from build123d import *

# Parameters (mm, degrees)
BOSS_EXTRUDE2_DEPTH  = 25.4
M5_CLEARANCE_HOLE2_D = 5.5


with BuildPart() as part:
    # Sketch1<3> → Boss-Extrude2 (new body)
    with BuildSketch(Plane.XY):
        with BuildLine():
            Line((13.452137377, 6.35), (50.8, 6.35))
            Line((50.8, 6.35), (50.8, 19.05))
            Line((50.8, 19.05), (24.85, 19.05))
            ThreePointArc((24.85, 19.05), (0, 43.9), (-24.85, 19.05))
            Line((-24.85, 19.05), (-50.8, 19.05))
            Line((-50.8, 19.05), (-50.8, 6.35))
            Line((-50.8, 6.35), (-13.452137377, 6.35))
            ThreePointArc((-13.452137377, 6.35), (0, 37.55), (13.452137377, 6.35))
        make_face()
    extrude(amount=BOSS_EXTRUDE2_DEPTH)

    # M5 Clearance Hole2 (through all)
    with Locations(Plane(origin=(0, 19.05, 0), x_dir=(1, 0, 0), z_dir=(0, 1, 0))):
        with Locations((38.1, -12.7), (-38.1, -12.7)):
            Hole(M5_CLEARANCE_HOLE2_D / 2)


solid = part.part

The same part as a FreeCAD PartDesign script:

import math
import FreeCAD as App
import Part
import Sketcher
from FreeCAD import Vector
Q = App.Units.Quantity

doc = App.newDocument("Part")
body = doc.addObject("PartDesign::Body", "Body")

sketch1 = body.newObject("Sketcher::SketchObject", "Sketch")
sketch1.AttachmentSupport = (doc.getObject("XY_Plane"), [""])
sketch1.MapMode = "FlatFace"
sketch1.addGeometry(Part.LineSegment(Vector(13.452137, 6.35, 0), Vector(50.8, 6.35, 0)), False)
sketch1.addGeometry(Part.LineSegment(Vector(50.8, 6.35, 0), Vector(50.8, 19.05, 0)), False)
sketch1.addGeometry(Part.LineSegment(Vector(50.8, 19.05, 0), Vector(24.85, 19.05, 0)), False)
sketch1.addGeometry(Part.ArcOfCircle(Part.Circle(Vector(0, 19.05, 0), Vector(0, 0, 1), 24.85), math.radians(0), math.radians(180)), False)
sketch1.addGeometry(Part.LineSegment(Vector(-24.85, 19.05, 0), Vector(-50.8, 19.05, 0)), False)
sketch1.addGeometry(Part.LineSegment(Vector(-50.8, 19.05, 0), Vector(-50.8, 6.35, 0)), False)
sketch1.addGeometry(Part.LineSegment(Vector(-50.8, 6.35, 0), Vector(-13.452137, 6.35, 0)), False)
sketch1.addGeometry(Part.ArcOfCircle(Part.Circle(Vector(0, 19.05, 0), Vector(0, 0, 1), 18.5), math.radians(-43.352623), math.radians(223.352623)), False)
sketch1.addConstraint(Sketcher.Constraint("Coincident", 0, 2, 1, 1))
sketch1.addConstraint(Sketcher.Constraint("Coincident", 1, 2, 2, 1))
sketch1.addConstraint(Sketcher.Constraint("Coincident", 2, 2, 3, 1))
sketch1.addConstraint(Sketcher.Constraint("Coincident", 3, 2, 4, 1))
sketch1.addConstraint(Sketcher.Constraint("Coincident", 4, 2, 5, 1))
sketch1.addConstraint(Sketcher.Constraint("Coincident", 5, 2, 6, 1))
sketch1.addConstraint(Sketcher.Constraint("Coincident", 6, 2, 7, 2))
sketch1.addConstraint(Sketcher.Constraint("Coincident", 7, 1, 0, 1))
sketch1.addConstraint(Sketcher.Constraint("Horizontal", 0))
sketch1.addConstraint(Sketcher.Constraint("Vertical", 1))
sketch1.addConstraint(Sketcher.Constraint("Horizontal", 2))
sketch1.addConstraint(Sketcher.Constraint("Horizontal", 4))
sketch1.addConstraint(Sketcher.Constraint("Vertical", 5))
sketch1.addConstraint(Sketcher.Constraint("Horizontal", 6))
sketch1.addConstraint(Sketcher.Constraint("Coincident", 7, 3, 3, 3))
sketch1.addConstraint(Sketcher.Constraint("Symmetric", 2, 2, 3, 2, -2))
sketch1.addConstraint(Sketcher.Constraint("Symmetric", 0, 2, 5, 2, -2))
sketch1.addConstraint(Sketcher.Constraint("Horizontal", 7, 3, 1, 2))
sketch1.addConstraint(Sketcher.Constraint("Radius", 7, Q("18.5 mm")))
sketch1.addConstraint(Sketcher.Constraint("Radius", 3, Q("24.85 mm")))
sketch1.addConstraint(Sketcher.Constraint("DistanceY", 1, 1, 1, 2, Q("12.7 mm")))
sketch1.addConstraint(Sketcher.Constraint("DistanceX", 2, 2, 2, 1, Q("25.95 mm")))
sketch1.addConstraint(Sketcher.Constraint("DistanceY", -1, 1, 3, 3, Q("19.05 mm")))
pad1 = body.newObject("PartDesign::Pad", "Pad")
pad1.Profile = sketch1
pad1.Length = 25.4

sketch2 = body.newObject("Sketcher::SketchObject", "Sketch001")
sketch2.AttachmentSupport = (doc.getObject("XZ_Plane"), [""])
sketch2.MapMode = "FlatFace"
sketch2.AttachmentOffset = App.Placement(Vector(0, 0, -19.05), App.Rotation())
sketch2.addGeometry(Part.Circle(Vector(38.1, 12.7, 0), Vector(0, 0, 1), 2.75), False)
sketch2.addGeometry(Part.Circle(Vector(-38.1, 12.7, 0), Vector(0, 0, 1), 2.75), False)
sketch2.addConstraint(Sketcher.Constraint("Equal", 0, 1))
sketch2.addConstraint(Sketcher.Constraint("Symmetric", 0, 3, 1, 3, -2))
sketch2.addConstraint(Sketcher.Constraint("Diameter", 0, Q("5.5 mm")))
sketch2.addConstraint(Sketcher.Constraint("DistanceX", -1, 1, 0, 3, Q("38.1 mm")))
sketch2.addConstraint(Sketcher.Constraint("DistanceY", -1, 1, 0, 3, Q("12.7 mm")))
doc.recompute()
hole = body.newObject("PartDesign::Hole", "Hole")
hole.Profile = sketch2
hole.ThreadType = "None"
hole.Diameter = 5.5
hole.DepthType = "ThroughAll"
hole.Reversed = True

doc.recompute()
